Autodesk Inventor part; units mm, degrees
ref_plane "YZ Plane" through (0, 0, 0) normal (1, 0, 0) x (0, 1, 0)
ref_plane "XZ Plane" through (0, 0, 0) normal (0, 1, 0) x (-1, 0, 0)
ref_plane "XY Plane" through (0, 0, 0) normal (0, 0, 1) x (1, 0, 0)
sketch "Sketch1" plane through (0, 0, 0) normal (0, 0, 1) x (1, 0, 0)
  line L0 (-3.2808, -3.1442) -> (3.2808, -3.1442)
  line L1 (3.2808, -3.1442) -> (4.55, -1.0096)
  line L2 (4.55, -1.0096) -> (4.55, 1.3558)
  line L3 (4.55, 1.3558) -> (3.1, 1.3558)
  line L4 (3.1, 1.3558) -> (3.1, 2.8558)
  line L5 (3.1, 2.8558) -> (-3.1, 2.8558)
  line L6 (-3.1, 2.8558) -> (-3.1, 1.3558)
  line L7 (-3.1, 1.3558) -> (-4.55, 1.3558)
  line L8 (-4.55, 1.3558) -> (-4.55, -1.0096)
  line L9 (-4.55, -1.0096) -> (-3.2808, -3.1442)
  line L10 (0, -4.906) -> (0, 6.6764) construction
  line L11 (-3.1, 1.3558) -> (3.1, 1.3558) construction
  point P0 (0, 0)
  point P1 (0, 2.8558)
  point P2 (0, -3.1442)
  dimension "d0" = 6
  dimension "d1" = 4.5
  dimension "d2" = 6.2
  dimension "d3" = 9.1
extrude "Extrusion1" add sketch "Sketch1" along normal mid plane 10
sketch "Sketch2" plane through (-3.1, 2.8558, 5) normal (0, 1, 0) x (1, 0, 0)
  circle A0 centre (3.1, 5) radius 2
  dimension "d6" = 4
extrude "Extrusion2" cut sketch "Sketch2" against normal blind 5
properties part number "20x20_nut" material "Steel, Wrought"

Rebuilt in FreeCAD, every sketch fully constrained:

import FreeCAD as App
import Part
import Sketcher
from FreeCAD import Vector


def add_polygon(sketch, points):
    """Adds a closed chain of lines whose ends are joined by coincident constraints."""
    first, n = sketch.GeometryCount, len(points)
    for a, b in zip(points, points[1:] + points[:1]):
        sketch.addGeometry(Part.LineSegment(App.Vector(*a, 0), App.Vector(*b, 0)), False)
    for i in range(n):
        sketch.addConstraint(Sketcher.Constraint("Coincident", first + i, 2, first + (i + 1) % n, 1))

doc = App.newDocument("Part")
params = doc.addObject("Spreadsheet::Sheet", "Params")
for row, (alias, value) in enumerate([
    ("sketch1_width", "6.2 mm"),
    ("sketch1_width2", "1.45 mm"),
    ("pad1_length", "10 mm"),
    ("sketch2_diameter", "4 mm"),
    ("pocket1_length", "5 mm"),
], start=1):
    params.set(f"A{row}", alias)
    params.set(f"B{row}", "=" + value)
    params.setAlias(f"B{row}", alias)

body = doc.addObject("PartDesign::Body", "Body")

# Sketch on XY plane
sketch1 = body.newObject("Sketcher::SketchObject", "Sketch")
sketch1.AttachmentSupport = (doc.getObject("XY_Plane"), [""])
sketch1.MapMode = "FlatFace"
add_polygon(sketch1, [(-4.5, -1), (-3.3, -3.1), (3.3, -3.1), (4.5, -1), (4.5, 1.4), (3.1, 1.4), (3.1, 2.9), (-3.1, 2.9), (-3.1, 1.4), (-4.5, 1.4)])  # lines 0-9
sketch1.addConstraint([
    Sketcher.Constraint("Horizontal", 1),
    Sketcher.Constraint("Vertical", 3),
    Sketcher.Constraint("Horizontal", 4),
    Sketcher.Constraint("Vertical", 5),
    Sketcher.Constraint("Horizontal", 6),
    Sketcher.Constraint("Vertical", 7),
    Sketcher.Constraint("Horizontal", 8),
    Sketcher.Constraint("Vertical", 9),
    Sketcher.Constraint("Symmetric", 4, 2, 7, 2, -2),
    Sketcher.Constraint("Symmetric", 2, 2, 9, 2, -2),
    Sketcher.Constraint("Equal", 0, 2),
    Sketcher.Constraint("DistanceX", 6, 2, 6, 1, 6.2),
    Sketcher.Constraint("DistanceY", 1, 2, 5, 2, 6.0),
    Sketcher.Constraint("DistanceY", 1, 2, 3, 2, 4.5),
    Sketcher.Constraint("DistanceX", 4, 2, 4, 1, 1.45),
    Sketcher.Constraint("DistanceX", 1, 1, 1, 2, 6.5616),
    Sketcher.Constraint("DistanceY", 3, 1, 3, 2, 2.3654),
    Sketcher.Constraint("DistanceY", 0, 2, -1, 1, 3.1442),
])
sketch1.setExpression("Constraints[21]", "Params.sketch1_width")
sketch1.setExpression("Constraints[24]", "Params.sketch1_width2")
pad1 = body.newObject("PartDesign::Pad", "Pad")
pad1.Profile = sketch1
pad1.setExpression("Length", "Params.pad1_length")
pad1.Midplane = True

# Sketch on XZ plane
sketch2 = body.newObject("Sketcher::SketchObject", "Sketch001")
sketch2.AttachmentSupport = (doc.getObject("XZ_Plane"), [""])
sketch2.MapMode = "FlatFace"
sketch2.AttachmentOffset = App.Placement(Vector(0, 0, -2.8558), App.Rotation())
sketch2.addGeometry(Part.Circle(Vector(0, 0, 0), Vector(0, 0, 1), 2), False)
sketch2.addConstraint([
    Sketcher.Constraint("Coincident", 0, 3, -1, 1),
    Sketcher.Constraint("Diameter", 0, 4.0),
])
sketch2.setExpression("Constraints[1]", "Params.sketch2_diameter")
pocket1 = body.newObject("PartDesign::Pocket", "Pocket")
pocket1.Profile = sketch2
pocket1.setExpression("Length", "Params.pocket1_length")
pocket1.Reversed = True

doc.recompute()
